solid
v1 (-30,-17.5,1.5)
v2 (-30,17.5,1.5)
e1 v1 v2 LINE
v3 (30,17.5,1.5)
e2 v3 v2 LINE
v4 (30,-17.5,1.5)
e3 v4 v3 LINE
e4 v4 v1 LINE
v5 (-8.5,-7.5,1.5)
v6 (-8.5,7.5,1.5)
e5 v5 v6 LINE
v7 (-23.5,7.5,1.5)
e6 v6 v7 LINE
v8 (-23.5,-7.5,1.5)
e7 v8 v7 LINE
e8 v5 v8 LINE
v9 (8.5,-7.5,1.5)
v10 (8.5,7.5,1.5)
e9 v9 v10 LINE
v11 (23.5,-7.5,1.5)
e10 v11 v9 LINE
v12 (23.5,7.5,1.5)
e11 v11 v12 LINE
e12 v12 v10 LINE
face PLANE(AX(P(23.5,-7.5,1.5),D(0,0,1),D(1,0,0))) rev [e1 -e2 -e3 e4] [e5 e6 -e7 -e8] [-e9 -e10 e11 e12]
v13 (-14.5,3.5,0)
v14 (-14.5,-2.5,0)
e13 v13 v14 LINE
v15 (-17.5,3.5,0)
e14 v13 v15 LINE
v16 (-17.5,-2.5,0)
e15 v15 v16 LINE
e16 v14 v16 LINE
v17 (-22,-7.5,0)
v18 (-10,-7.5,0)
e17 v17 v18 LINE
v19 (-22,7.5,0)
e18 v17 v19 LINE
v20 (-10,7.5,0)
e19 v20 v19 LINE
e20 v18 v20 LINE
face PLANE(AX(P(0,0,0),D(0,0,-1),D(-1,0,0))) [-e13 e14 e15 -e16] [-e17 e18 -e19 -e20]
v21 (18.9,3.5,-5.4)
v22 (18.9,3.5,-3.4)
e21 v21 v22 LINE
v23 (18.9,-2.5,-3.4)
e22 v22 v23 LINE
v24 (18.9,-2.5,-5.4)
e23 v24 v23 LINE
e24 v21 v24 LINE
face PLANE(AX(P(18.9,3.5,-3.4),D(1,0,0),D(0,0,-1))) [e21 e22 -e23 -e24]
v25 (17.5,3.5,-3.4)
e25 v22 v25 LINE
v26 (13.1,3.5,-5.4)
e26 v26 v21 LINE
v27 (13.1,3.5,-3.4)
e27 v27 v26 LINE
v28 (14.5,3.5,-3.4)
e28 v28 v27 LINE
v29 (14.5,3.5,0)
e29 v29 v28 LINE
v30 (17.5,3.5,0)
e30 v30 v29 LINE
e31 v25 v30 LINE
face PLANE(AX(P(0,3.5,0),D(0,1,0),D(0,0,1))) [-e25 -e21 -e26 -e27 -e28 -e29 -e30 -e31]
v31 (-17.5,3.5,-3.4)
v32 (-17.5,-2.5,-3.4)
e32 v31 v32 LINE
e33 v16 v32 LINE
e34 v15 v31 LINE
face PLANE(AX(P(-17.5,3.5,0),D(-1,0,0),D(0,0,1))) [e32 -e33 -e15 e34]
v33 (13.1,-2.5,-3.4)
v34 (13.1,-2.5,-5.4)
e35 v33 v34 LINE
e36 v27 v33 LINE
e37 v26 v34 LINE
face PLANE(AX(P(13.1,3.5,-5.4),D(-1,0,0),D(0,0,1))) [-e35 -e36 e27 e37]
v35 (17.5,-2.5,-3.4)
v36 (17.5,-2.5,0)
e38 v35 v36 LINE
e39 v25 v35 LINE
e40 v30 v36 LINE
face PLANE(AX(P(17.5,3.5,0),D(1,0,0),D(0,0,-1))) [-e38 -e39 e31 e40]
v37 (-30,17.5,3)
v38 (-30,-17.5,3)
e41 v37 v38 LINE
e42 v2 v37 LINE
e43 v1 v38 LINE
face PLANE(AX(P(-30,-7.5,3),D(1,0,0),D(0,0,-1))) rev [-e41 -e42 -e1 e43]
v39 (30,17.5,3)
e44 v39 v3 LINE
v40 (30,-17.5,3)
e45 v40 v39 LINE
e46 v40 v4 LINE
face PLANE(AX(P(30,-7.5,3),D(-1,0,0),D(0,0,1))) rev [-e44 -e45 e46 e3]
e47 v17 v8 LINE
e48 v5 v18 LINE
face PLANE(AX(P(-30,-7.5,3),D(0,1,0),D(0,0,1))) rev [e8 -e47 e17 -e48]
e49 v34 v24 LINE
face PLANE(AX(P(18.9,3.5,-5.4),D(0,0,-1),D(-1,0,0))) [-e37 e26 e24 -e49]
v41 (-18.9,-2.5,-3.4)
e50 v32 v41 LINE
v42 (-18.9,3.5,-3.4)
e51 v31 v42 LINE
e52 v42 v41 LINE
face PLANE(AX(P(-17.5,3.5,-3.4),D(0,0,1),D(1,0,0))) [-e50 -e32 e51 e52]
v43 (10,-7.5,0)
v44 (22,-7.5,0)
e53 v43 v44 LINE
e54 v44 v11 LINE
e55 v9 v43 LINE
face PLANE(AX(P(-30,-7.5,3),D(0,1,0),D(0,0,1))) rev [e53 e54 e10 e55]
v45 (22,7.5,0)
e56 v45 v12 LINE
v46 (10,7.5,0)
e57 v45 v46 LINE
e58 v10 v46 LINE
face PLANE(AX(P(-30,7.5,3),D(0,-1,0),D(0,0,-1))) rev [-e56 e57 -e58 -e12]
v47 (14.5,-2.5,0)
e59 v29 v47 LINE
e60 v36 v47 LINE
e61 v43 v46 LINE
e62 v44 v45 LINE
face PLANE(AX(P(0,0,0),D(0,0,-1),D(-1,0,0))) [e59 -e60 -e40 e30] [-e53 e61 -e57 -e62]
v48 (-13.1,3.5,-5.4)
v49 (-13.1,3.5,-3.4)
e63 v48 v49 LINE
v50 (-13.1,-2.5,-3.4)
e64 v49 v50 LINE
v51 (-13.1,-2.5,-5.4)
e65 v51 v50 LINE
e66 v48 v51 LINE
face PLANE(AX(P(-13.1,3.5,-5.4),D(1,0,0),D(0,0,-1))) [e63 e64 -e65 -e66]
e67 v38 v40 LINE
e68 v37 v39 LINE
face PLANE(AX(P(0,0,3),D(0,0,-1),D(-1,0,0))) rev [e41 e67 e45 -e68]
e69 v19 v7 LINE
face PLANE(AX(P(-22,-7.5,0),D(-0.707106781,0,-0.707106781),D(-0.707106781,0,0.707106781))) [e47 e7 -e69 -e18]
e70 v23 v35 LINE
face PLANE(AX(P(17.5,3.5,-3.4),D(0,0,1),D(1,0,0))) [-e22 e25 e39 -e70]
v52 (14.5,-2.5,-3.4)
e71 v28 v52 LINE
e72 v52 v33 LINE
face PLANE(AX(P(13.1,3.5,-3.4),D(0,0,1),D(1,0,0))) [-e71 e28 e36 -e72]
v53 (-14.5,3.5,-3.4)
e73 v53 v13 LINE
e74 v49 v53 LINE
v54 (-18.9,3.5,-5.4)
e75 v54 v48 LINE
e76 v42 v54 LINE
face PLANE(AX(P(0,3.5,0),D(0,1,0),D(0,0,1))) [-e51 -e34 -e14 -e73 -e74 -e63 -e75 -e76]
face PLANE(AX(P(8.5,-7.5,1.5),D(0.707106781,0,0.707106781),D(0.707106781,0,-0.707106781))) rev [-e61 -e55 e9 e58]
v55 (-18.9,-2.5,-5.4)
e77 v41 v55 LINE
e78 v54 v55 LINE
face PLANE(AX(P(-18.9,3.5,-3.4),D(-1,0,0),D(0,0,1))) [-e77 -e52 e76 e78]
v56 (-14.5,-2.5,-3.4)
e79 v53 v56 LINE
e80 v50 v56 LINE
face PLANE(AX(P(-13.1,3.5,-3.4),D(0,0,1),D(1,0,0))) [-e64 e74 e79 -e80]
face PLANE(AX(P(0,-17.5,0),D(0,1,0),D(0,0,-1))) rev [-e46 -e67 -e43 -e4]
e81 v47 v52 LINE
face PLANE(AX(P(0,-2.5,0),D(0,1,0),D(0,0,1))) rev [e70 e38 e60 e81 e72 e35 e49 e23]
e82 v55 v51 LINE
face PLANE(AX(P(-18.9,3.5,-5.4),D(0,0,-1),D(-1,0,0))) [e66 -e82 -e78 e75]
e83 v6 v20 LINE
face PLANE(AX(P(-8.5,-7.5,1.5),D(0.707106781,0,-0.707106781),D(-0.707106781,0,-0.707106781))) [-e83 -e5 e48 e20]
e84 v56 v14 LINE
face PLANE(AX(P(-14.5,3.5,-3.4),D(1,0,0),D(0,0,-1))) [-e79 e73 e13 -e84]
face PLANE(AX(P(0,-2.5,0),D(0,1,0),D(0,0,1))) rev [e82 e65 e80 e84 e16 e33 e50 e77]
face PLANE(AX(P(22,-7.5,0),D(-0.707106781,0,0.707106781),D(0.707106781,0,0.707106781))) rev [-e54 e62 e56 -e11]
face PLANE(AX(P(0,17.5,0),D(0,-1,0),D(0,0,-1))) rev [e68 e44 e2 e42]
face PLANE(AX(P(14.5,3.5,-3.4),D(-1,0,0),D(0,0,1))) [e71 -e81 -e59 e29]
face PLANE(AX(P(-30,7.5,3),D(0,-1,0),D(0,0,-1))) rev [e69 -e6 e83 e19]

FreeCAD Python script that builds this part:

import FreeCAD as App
import Part
import Sketcher


def add_polygon(sketch, points):
    """Adds a closed chain of lines whose ends are joined by coincident constraints."""
    first, n = sketch.GeometryCount, len(points)
    for a, b in zip(points, points[1:] + points[:1]):
        sketch.addGeometry(Part.LineSegment(App.Vector(*a, 0), App.Vector(*b, 0)), False)
    for i in range(n):
        sketch.addConstraint(Sketcher.Constraint("Coincident", first + i, 2, first + (i + 1) % n, 1))

doc = App.newDocument("Part")
params = doc.addObject("Spreadsheet::Sheet", "Params")
for row, (alias, value) in enumerate([
    ("sketch1_width", "60 mm"),
    ("sketch1_height", "15 mm"),
    ("pad1_length", "3 mm"),
    ("sketch2_width", "3 mm"),
    ("sketch2_height", "2 mm"),
    ("sketch2_width2", "1.4 mm"),
    ("sketch2_height2", "3.4 mm"),
    ("pad2_length", "6 mm"),
    ("sketch3_width", "8 mm"),
    ("sketch3_width2", "10 mm"),
    ("sketch3_width3", "6.5 mm"),
    ("sketch4_width", "60 mm"),
    ("sketch4_height", "1.5 mm"),
    ("pad3_length", "10 mm"),
], start=1):
    params.set(f"A{row}", alias)
    params.set(f"B{row}", "=" + value)
    params.setAlias(f"B{row}", alias)

body = doc.addObject("PartDesign::Body", "Body")

# Sketch on XY plane
sketch1 = body.newObject("Sketcher::SketchObject", "Sketch")
sketch1.AttachmentSupport = (doc.getObject("XY_Plane"), [""])
sketch1.MapMode = "FlatFace"
add_polygon(sketch1, [(-30, 7.5), (-30, -7.5), (30, -7.5), (30, 7.5)])  # lines 0-3
sketch1.addConstraint(Sketcher.Constraint("Vertical", 0))
sketch1.addConstraint(Sketcher.Constraint("Horizontal", 1))
sketch1.addConstraint(Sketcher.Constraint("Vertical", 2))
sketch1.addConstraint(Sketcher.Constraint("Horizontal", 3))
sketch1.addConstraint(Sketcher.Constraint("Symmetric", 0, 2, 2, 2, -1, 1))
sketch1.addConstraint(Sketcher.Constraint("DistanceX", 1, 1, 1, 2, 60.0))
sketch1.addConstraint(Sketcher.Constraint("DistanceY", 0, 2, 0, 1, 15.0))
sketch1.setExpression("Constraints[9]", "Params.sketch1_width")
sketch1.setExpression("Constraints[10]", "Params.sketch1_height")
pad1 = body.newObject("PartDesign::Pad", "Pad")
pad1.Profile = sketch1
pad1.setExpression("Length", "Params.pad1_length")

# Sketch on XZ plane
sketch2 = body.newObject("Sketcher::SketchObject", "Sketch001")
sketch2.AttachmentSupport = (doc.getObject("XZ_Plane"), [""])
sketch2.MapMode = "FlatFace"
sketch2.AttachmentOffset = App.Placement(App.Vector(0, 0, 2.5), App.Rotation())
add_polygon(sketch2, [(17.5, 0), (14.5, 0), (14.5, -3.4), (13.1, -3.4), (13.1, -5.4), (18.9, -5.4), (18.9, -3.4), (17.5, -3.4)])  # lines 0-7
add_polygon(sketch2, [(-14.5, -3.4), (-14.5, 0), (-17.5, 0), (-17.5, -3.4), (-18.9, -3.4), (-18.9, -5.4), (-13.1, -5.4), (-13.1, -3.4)])  # lines 8-15
sketch2.addConstraint(Sketcher.Constraint("Horizontal", 0))
sketch2.addConstraint(Sketcher.Constraint("Vertical", 1))
sketch2.addConstraint(Sketcher.Constraint("Horizontal", 2))
sketch2.addConstraint(Sketcher.Constraint("Vertical", 3))
sketch2.addConstraint(Sketcher.Constraint("Horizontal", 4))
sketch2.addConstraint(Sketcher.Constraint("Vertical", 5))
sketch2.addConstraint(Sketcher.Constraint("Horizontal", 6))
sketch2.addConstraint(Sketcher.Constraint("Vertical", 7))
sketch2.addConstraint(Sketcher.Constraint("Vertical", 8))
sketch2.addConstraint(Sketcher.Constraint("Horizontal", 9))
sketch2.addConstraint(Sketcher.Constraint("Vertical", 10))
sketch2.addConstraint(Sketcher.Constraint("Horizontal", 11))
sketch2.addConstraint(Sketcher.Constraint("Vertical", 12))
sketch2.addConstraint(Sketcher.Constraint("Horizontal", 13))
sketch2.addConstraint(Sketcher.Constraint("Vertical", 14))
sketch2.addConstraint(Sketcher.Constraint("Horizontal", 15))
sketch2.addConstraint(Sketcher.Constraint("Symmetric", 0, 2, 8, 2, -1, 1))
sketch2.addConstraint(Sketcher.Constraint("Symmetric", 7, 2, 9, 2, -2))
sketch2.addConstraint(Sketcher.Constraint("Symmetric", 5, 2, 11, 2, -2))
sketch2.addConstraint(Sketcher.Constraint("Symmetric", 3, 2, 13, 2, -2))
sketch2.addConstraint(Sketcher.Constraint("Horizontal", 2, 2, 5, 2))
sketch2.addConstraint(Sketcher.Constraint("Horizontal", 11, 2, 14, 2))
sketch2.addConstraint(Sketcher.Constraint("Equal", 2, 6))
sketch2.addConstraint(Sketcher.Constraint("DistanceX", 0, 2, 0, 1, 3.0))
sketch2.addConstraint(Sketcher.Constraint("DistanceY", 3, 2, 3, 1, 2.0))
sketch2.addConstraint(Sketcher.Constraint("DistanceX", 2, 2, 2, 1, 1.4))
sketch2.addConstraint(Sketcher.Constraint("DistanceY", 1, 2, 1, 1, 3.4))
sketch2.addConstraint(Sketcher.Constraint("DistanceX", 8, 2, 0, 2, 29.0))
sketch2.setExpression("Constraints[39]", "Params.sketch2_width")
sketch2.setExpression("Constraints[40]", "Params.sketch2_height")
sketch2.setExpression("Constraints[41]", "Params.sketch2_width2")
sketch2.setExpression("Constraints[42]", "Params.sketch2_height2")
pad2 = body.newObject("PartDesign::Pad", "Pad001")
pad2.Profile = sketch2
pad2.setExpression("Length", "Params.pad2_length")
pad2.Reversed = True

# Sketch on XZ plane
sketch3 = body.newObject("Sketcher::SketchObject", "Sketch002")
sketch3.AttachmentSupport = (doc.getObject("XZ_Plane"), [""])
sketch3.MapMode = "FlatFace"
sketch3.AttachmentOffset = App.Placement(App.Vector(0, 0, -7.5), App.Rotation())
add_polygon(sketch3, [(30, 0), (22, 0), (23.5, 1.5), (30, 1.5)])  # lines 0-3
add_polygon(sketch3, [(0, 0), (0, 1.5), (8.5, 1.5), (10, 0)])  # lines 4-7
sketch3.addConstraint(Sketcher.Constraint("Horizontal", 0))
sketch3.addConstraint(Sketcher.Constraint("Horizontal", 2))
sketch3.addConstraint(Sketcher.Constraint("Vertical", 3))
sketch3.addConstraint(Sketcher.Constraint("Vertical", 4))
sketch3.addConstraint(Sketcher.Constraint("Horizontal", 5))
sketch3.addConstraint(Sketcher.Constraint("Horizontal", 7))
sketch3.addConstraint(Sketcher.Constraint("Coincident", 7, 2, -1, 1))
sketch3.addConstraint(Sketcher.Constraint("PointOnObject", 0, 2, -1))
sketch3.addConstraint(Sketcher.Constraint("Perpendicular", 1, 6))
sketch3.addConstraint(Sketcher.Constraint("Horizontal", 2, 2, 4, 2))
sketch3.addConstraint(Sketcher.Constraint("Equal", 1, 6))
sketch3.addConstraint(Sketcher.Constraint("DistanceX", 0, 2, 0, 1, 8.0))
sketch3.addConstraint(Sketcher.Constraint("DistanceX", 7, 2, 7, 1, 10.0))
sketch3.addConstraint(Sketcher.Constraint("DistanceX", 2, 1, 2, 2, 6.5))
sketch3.addConstraint(Sketcher.Constraint("DistanceX", -1, 1, 0, 2, 22.0))
sketch3.setExpression("Constraints[19]", "Params.sketch3_width")
sketch3.setExpression("Constraints[20]", "Params.sketch3_width2")
sketch3.setExpression("Constraints[21]", "Params.sketch3_width3")
pocket1 = body.newObject("PartDesign::Pocket", "Pocket")
pocket1.Profile = sketch3
pocket1.Type = "ThroughAll"
pocket1.Reversed = True
doc.recompute()

mirrored = body.newObject("PartDesign::Mirrored", "Mirrored")
mirrored.Originals = [pocket1]
mirrored.MirrorPlane = (doc.getObject("YZ_Plane"), [""])
body.Tip = mirrored

# Sketch on XZ plane
sketch4 = body.newObject("Sketcher::SketchObject", "Sketch003")
sketch4.AttachmentSupport = (doc.getObject("XZ_Plane"), [""])
sketch4.MapMode = "FlatFace"
sketch4.AttachmentOffset = App.Placement(App.Vector(0, 0, -7.5), App.Rotation())
add_polygon(sketch4, [(-30, 1.5), (-30, 3), (30, 3), (30, 1.5)])  # lines 0-3
sketch4.addConstraint(Sketcher.Constraint("Vertical", 0))
sketch4.addConstraint(Sketcher.Constraint("Horizontal", 1))
sketch4.addConstraint(Sketcher.Constraint("Vertical", 2))
sketch4.addConstraint(Sketcher.Constraint("Horizontal", 3))
sketch4.addConstraint(Sketcher.Constraint("DistanceX", 1, 1, 1, 2, 60.0))
sketch4.addConstraint(Sketcher.Constraint("DistanceY", 0, 1, 0, 2, 1.5))
sketch4.addConstraint(Sketcher.Constraint("DistanceX", 0, 2, -1, 1, 30.0))
sketch4.addConstraint(Sketcher.Constraint("DistanceY", -1, 1, 0, 2, 3.0))
sketch4.setExpression("Constraints[8]", "Params.sketch4_width")
sketch4.setExpression("Constraints[9]", "Params.sketch4_height")
pad3 = body.newObject("PartDesign::Pad", "Pad002")
pad3.Profile = sketch4
pad3.setExpression("Length", "Params.pad3_length")
pad3.Reversed = True
doc.recompute()

mirrored2 = body.newObject("PartDesign::Mirrored", "Mirrored001")
mirrored2.Originals = [pad3]
mirrored2.MirrorPlane = (doc.getObject("XZ_Plane"), [""])
body.Tip = mirrored2

doc.recompute()
